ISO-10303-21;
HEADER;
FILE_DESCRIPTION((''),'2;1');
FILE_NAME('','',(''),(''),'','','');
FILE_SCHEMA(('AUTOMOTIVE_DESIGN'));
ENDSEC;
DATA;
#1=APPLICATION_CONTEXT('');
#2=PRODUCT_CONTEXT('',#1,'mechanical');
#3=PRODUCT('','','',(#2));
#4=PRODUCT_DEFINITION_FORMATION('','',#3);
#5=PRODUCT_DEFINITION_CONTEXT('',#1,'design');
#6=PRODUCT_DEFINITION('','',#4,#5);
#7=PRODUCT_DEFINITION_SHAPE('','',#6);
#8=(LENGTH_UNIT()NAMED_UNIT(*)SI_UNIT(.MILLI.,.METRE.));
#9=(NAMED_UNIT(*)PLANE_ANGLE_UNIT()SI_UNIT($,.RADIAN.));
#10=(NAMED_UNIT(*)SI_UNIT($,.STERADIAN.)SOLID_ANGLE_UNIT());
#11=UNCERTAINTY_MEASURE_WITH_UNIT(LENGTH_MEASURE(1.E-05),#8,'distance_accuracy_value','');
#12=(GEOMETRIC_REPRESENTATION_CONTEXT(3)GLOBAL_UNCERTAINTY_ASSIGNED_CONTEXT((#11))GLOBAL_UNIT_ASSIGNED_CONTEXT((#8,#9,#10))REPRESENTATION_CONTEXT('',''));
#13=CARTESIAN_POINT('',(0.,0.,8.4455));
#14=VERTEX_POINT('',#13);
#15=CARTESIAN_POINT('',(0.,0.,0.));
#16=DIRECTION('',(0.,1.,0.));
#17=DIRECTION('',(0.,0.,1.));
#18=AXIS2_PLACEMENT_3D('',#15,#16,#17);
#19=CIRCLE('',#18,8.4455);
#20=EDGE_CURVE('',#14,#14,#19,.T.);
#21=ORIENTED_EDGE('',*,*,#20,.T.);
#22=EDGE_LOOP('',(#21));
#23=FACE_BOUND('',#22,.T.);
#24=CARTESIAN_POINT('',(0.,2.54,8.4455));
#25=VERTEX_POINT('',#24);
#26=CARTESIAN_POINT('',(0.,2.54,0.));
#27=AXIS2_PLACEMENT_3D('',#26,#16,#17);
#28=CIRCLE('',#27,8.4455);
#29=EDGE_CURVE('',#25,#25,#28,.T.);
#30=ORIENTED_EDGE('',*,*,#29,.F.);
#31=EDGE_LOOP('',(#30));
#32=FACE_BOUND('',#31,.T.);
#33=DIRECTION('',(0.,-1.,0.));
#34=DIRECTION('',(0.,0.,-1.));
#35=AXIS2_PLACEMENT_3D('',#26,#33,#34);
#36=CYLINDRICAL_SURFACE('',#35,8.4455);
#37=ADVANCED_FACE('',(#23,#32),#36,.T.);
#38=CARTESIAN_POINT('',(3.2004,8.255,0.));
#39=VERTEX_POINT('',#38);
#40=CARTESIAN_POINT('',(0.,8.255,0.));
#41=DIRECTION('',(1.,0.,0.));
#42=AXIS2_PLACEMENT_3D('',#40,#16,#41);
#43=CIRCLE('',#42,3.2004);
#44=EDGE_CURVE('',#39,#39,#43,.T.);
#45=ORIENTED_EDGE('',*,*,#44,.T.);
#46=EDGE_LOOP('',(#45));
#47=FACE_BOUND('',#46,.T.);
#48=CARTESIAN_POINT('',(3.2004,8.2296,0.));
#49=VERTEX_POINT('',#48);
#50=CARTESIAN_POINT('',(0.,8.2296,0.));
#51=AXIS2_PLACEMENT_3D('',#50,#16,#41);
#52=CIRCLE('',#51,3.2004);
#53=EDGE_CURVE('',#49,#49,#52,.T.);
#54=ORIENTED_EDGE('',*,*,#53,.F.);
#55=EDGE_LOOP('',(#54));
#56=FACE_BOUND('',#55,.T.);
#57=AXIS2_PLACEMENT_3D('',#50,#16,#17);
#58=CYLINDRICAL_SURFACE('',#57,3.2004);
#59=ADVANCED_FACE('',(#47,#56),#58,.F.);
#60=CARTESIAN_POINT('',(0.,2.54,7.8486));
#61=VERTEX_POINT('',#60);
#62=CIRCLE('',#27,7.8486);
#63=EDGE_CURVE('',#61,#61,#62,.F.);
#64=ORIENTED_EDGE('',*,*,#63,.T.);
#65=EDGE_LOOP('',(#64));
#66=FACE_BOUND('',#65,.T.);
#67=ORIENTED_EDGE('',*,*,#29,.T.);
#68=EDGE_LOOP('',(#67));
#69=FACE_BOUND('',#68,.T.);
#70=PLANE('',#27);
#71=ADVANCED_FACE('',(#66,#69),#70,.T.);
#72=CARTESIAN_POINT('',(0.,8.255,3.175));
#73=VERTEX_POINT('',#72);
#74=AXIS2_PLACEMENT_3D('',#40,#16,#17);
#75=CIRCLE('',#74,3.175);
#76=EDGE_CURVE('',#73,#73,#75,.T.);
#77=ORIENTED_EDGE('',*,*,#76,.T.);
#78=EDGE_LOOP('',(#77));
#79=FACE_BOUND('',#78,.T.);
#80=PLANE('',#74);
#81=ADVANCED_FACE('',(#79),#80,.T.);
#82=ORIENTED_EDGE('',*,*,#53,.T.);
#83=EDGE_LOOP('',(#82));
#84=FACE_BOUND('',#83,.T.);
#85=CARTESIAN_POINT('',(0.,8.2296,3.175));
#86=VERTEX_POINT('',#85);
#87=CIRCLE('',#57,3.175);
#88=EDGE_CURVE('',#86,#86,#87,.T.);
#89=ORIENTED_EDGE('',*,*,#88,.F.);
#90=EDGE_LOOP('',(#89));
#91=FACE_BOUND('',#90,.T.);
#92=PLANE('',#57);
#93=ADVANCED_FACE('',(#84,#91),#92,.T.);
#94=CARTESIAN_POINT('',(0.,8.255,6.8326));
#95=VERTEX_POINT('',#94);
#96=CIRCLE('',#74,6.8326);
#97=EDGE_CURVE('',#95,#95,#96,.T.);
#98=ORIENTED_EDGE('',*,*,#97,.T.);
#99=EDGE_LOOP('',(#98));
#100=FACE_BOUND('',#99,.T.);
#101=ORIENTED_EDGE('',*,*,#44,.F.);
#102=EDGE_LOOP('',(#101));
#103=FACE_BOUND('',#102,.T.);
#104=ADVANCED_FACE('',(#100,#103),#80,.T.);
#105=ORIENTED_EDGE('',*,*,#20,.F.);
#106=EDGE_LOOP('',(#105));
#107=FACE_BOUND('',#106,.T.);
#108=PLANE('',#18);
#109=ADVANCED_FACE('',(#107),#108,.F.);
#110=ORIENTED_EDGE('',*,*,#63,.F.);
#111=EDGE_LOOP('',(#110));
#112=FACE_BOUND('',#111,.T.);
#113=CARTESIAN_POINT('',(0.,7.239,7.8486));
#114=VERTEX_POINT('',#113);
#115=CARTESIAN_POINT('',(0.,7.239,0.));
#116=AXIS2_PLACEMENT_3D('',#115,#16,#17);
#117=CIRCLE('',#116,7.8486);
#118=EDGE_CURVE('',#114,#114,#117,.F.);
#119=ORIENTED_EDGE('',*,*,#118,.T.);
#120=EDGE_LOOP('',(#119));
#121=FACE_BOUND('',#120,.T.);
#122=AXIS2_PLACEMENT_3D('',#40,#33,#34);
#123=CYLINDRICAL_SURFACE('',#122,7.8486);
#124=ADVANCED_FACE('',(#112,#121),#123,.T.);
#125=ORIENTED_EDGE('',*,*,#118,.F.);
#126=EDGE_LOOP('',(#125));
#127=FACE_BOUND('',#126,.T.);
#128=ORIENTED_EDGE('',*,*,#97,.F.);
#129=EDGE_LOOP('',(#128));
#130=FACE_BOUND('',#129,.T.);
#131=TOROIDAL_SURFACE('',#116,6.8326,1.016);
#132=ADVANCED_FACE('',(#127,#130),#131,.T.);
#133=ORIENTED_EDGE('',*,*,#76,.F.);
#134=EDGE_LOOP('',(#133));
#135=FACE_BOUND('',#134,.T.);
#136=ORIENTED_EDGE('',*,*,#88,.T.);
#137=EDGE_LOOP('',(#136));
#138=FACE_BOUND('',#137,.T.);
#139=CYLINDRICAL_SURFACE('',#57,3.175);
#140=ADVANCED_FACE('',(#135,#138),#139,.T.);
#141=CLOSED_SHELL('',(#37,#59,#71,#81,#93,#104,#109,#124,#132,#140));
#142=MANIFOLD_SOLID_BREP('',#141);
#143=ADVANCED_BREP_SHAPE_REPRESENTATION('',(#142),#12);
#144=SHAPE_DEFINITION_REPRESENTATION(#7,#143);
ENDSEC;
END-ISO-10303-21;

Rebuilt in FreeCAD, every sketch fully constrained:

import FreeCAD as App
import Part
import Sketcher
Q = App.Units.Quantity


def edges_at(feature, points):
    """Names of the edges that pass closest to the given points."""
    edges = feature.Shape.Edges
    near = lambda p: min(range(len(edges)), key=lambda i: edges[i].distToShape(Part.Vertex(*p))[0])
    return sorted({f"Edge{near(p) + 1}" for p in points})

doc = App.newDocument("Part")
params = doc.addObject("Spreadsheet::Sheet", "Params")
for row, (alias, value) in enumerate([
    ("sketch1_diameter", "0.665 in"),
    ("pad1_length", "0.1 in"),
    ("sketch2_diameter", "0.618 in"),
    ("pad2_length", "0.325 in"),
    ("fillet_radius", "0.04 in"),
    ("sketch3_diameter", "0.25 in"),
    ("sketch3_diameter2", "0.252 in"),
    ("pocket1_length", "0.001 in"),
], start=1):
    params.set(f"A{row}", alias)
    params.set(f"B{row}", "=" + value)
    params.setAlias(f"B{row}", alias)

body = doc.addObject("PartDesign::Body", "Body")

# Sketch on XZ plane
sketch1 = body.newObject("Sketcher::SketchObject", "Sketch")
sketch1.AttachmentSupport = (doc.getObject("XZ_Plane"), [""])
sketch1.MapMode = "FlatFace"
sketch1.addGeometry(Part.Circle(App.Vector(0, 0, 0), App.Vector(0, 0, 1), 8), False)
sketch1.addConstraint([
    Sketcher.Constraint("Coincident", 0, 3, -1, 1),
    Sketcher.Constraint("Diameter", 0, Q("0.665 in")),
])
sketch1.setExpression("Constraints[1]", "Params.sketch1_diameter")
pad1 = body.newObject("PartDesign::Pad", "Pad")
pad1.Profile = sketch1
pad1.setExpression("Length", "Params.pad1_length")
pad1.Reversed = True

# Sketch on XZ plane
sketch2 = body.newObject("Sketcher::SketchObject", "Sketch001")
sketch2.AttachmentSupport = (doc.getObject("XZ_Plane"), [""])
sketch2.MapMode = "FlatFace"
sketch2.addGeometry(Part.Circle(App.Vector(0, 0, 0), App.Vector(0, 0, 1), 8), False)
sketch2.addConstraint([
    Sketcher.Constraint("Coincident", 0, 3, -1, 1),
    Sketcher.Constraint("Diameter", 0, Q("0.618 in")),
])
sketch2.setExpression("Constraints[1]", "Params.sketch2_diameter")
pad2 = body.newObject("PartDesign::Pad", "Pad001")
pad2.Profile = sketch2
pad2.setExpression("Length", "Params.pad2_length")
pad2.Reversed = True
doc.recompute()

fillet = body.newObject("PartDesign::Fillet", "Fillet")
fillet.Base = (pad2, edges_at(pad2, [(-7.849, 8.255, 0)]))
fillet.setExpression("Radius", "Params.fillet_radius")

# Sketch on XZ plane
sketch3 = body.newObject("Sketcher::SketchObject", "Sketch002")
sketch3.AttachmentSupport = (doc.getObject("XZ_Plane"), [""])
sketch3.MapMode = "FlatFace"
sketch3.AttachmentOffset = App.Placement(App.Vector(0, 0, -0.325 * 25.4), App.Rotation())
sketch3.addGeometry([
    Part.Circle(App.Vector(0, 0, 0), App.Vector(0, 0, 1), 3.2),
    Part.Circle(App.Vector(0, 0, 0), App.Vector(0, 0, 1), 3.2),
], False)
sketch3.addConstraint([
    Sketcher.Constraint("Coincident", 0, 3, -1, 1),
    Sketcher.Constraint("Coincident", 1, 3, -1, 1),
    Sketcher.Constraint("Diameter", 1, Q("0.25 in")),
    Sketcher.Constraint("Diameter", 0, Q("0.252 in")),
])
sketch3.setExpression("Constraints[2]", "Params.sketch3_diameter")
sketch3.setExpression("Constraints[3]", "Params.sketch3_diameter2")
pocket1 = body.newObject("PartDesign::Pocket", "Pocket")
pocket1.Profile = sketch3
pocket1.setExpression("Length", "Params.pocket1_length")
pocket1.Reversed = True

doc.recompute()
